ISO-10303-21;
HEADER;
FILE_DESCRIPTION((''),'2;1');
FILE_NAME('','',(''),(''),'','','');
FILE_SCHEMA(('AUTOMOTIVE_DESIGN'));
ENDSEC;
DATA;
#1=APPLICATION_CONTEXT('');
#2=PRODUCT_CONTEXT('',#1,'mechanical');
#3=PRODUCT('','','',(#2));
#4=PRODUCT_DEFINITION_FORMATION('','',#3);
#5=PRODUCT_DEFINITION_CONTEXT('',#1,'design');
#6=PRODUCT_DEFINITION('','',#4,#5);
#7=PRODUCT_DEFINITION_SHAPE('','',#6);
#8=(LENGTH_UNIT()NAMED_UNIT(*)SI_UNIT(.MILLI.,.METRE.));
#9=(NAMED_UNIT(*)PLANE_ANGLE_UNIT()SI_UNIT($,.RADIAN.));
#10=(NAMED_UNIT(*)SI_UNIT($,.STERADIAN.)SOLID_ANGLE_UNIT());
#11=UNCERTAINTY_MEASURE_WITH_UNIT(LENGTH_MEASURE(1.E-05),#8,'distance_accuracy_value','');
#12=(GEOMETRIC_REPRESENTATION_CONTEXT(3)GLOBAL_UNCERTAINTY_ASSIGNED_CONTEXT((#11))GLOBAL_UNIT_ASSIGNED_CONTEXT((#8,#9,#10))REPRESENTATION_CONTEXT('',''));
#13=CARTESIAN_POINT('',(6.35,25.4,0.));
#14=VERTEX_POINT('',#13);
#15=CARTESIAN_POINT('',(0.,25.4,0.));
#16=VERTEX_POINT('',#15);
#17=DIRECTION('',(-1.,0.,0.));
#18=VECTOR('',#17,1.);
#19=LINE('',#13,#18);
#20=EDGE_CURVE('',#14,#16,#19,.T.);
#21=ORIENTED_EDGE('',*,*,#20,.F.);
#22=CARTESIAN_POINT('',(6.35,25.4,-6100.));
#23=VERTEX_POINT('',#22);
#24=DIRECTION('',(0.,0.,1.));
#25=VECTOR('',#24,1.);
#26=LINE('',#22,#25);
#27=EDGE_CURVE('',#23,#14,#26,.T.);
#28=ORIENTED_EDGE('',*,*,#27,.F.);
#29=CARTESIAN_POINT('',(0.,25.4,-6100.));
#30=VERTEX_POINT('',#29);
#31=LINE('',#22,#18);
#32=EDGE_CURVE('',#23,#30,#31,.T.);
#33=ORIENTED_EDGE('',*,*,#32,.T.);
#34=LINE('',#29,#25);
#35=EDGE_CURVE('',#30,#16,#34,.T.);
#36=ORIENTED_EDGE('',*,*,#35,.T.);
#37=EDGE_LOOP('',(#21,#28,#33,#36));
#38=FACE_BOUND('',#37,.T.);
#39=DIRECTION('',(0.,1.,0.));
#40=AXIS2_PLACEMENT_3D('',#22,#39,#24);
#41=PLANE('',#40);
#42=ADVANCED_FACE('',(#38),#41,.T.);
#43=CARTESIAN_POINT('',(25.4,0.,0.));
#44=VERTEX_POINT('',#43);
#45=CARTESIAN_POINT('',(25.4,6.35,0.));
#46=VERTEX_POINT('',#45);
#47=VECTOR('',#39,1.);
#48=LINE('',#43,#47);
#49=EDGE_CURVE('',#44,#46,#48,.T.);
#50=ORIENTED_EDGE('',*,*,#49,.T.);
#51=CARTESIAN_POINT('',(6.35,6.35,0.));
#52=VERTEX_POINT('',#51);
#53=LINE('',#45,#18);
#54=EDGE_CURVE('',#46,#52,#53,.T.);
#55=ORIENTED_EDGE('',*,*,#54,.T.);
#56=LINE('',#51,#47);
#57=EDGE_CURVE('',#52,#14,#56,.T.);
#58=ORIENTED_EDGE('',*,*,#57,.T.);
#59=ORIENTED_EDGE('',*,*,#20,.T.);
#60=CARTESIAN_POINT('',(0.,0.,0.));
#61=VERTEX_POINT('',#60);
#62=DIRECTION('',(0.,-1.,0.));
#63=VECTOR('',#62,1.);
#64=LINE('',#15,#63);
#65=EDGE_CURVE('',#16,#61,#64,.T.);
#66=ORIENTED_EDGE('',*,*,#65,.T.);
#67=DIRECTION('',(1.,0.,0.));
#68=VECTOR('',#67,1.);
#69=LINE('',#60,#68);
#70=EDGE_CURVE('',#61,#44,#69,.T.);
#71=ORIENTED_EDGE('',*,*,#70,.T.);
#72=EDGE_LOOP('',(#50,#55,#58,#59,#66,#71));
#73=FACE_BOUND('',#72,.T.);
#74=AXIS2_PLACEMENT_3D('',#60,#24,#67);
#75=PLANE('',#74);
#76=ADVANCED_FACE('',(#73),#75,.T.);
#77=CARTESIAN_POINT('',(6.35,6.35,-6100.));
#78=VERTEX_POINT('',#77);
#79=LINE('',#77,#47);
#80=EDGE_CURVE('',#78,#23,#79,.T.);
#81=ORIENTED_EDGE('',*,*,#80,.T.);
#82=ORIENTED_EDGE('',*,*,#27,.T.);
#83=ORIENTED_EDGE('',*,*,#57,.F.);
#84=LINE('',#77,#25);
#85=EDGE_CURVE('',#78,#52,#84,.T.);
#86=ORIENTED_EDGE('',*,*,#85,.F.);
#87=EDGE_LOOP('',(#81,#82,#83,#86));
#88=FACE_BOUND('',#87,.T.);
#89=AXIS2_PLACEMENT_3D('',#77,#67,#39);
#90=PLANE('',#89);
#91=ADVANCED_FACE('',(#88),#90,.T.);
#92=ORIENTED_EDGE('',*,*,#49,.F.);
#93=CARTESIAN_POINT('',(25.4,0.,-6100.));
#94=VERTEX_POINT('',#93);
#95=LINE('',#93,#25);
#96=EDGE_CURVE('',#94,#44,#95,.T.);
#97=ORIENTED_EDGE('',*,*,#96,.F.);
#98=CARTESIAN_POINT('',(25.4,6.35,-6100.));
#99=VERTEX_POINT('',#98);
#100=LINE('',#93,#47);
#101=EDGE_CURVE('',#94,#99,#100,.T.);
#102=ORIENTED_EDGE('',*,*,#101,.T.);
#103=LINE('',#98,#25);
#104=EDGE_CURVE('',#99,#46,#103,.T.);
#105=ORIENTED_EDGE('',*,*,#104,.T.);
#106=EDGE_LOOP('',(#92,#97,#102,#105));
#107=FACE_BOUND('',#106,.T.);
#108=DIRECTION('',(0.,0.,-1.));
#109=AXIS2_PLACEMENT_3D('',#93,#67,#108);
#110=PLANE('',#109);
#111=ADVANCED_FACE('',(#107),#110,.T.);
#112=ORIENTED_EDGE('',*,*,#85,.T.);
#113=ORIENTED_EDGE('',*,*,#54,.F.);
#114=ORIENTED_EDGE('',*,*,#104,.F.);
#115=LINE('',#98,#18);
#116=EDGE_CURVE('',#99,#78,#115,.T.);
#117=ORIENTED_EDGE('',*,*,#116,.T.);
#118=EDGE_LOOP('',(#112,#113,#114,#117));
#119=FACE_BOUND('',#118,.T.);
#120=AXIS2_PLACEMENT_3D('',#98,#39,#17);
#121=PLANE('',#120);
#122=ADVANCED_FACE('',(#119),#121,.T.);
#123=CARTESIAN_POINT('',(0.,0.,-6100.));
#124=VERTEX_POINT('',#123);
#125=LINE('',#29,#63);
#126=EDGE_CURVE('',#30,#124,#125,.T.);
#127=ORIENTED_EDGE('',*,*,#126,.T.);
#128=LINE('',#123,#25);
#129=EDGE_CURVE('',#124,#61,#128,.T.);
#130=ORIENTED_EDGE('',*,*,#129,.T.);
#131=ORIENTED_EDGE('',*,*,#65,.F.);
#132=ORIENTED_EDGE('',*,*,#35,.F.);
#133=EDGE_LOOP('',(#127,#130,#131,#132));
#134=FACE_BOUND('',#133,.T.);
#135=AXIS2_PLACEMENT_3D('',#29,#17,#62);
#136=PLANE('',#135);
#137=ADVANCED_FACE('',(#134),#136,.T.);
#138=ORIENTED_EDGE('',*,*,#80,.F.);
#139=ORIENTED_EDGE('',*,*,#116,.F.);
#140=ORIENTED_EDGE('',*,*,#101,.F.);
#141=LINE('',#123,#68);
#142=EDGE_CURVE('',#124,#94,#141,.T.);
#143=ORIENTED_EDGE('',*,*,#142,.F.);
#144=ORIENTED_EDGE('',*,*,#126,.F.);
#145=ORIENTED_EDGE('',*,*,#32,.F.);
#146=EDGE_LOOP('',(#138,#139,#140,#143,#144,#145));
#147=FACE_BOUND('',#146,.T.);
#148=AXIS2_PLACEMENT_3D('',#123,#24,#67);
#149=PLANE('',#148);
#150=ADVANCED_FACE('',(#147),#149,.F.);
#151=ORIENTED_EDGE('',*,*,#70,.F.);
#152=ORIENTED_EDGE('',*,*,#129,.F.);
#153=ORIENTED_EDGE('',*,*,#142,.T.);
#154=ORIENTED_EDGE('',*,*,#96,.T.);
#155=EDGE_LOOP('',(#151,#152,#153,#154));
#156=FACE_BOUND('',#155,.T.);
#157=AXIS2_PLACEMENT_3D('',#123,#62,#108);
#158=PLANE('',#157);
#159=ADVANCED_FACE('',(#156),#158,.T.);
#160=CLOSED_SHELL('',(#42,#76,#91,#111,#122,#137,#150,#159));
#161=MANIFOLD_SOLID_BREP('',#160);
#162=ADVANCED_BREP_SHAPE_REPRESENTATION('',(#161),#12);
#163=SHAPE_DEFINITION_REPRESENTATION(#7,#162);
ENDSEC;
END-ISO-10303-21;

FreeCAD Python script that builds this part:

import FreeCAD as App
import Part
import Sketcher
Q = App.Units.Quantity

doc = App.newDocument("Part")
body = doc.addObject("PartDesign::Body", "Body")

sketch1 = body.newObject("Sketcher::SketchObject", "Sketch")
sketch1.AttachmentSupport = (doc.getObject("XY_Plane"), [""])
sketch1.MapMode = "FlatFace"
sketch1.addGeometry([
    Part.LineSegment(App.Vector(0, 25, 0), App.Vector(0, 0, 0)),
    Part.LineSegment(App.Vector(0, 0, 0), App.Vector(25, 0, 0)),
    Part.LineSegment(App.Vector(25, 0, 0), App.Vector(25, 6, 0)),
    Part.LineSegment(App.Vector(25, 6, 0), App.Vector(6, 6, 0)),
    Part.LineSegment(App.Vector(6, 6, 0), App.Vector(6, 25, 0)),
    Part.LineSegment(App.Vector(6, 25, 0), App.Vector(0, 25, 0)),
], False)
sketch1.addConstraint([
    Sketcher.Constraint("Coincident", 0, 2, 1, 1),
    Sketcher.Constraint("Coincident", 1, 2, 2, 1),
    Sketcher.Constraint("Coincident", 2, 2, 3, 1),
    Sketcher.Constraint("Coincident", 3, 2, 4, 1),
    Sketcher.Constraint("Coincident", 4, 2, 5, 1),
    Sketcher.Constraint("Coincident", 5, 2, 0, 1),
    Sketcher.Constraint("Vertical", 0),
    Sketcher.Constraint("Horizontal", 1),
    Sketcher.Constraint("Vertical", 2),
    Sketcher.Constraint("Horizontal", 3),
    Sketcher.Constraint("Vertical", 4),
    Sketcher.Constraint("Horizontal", 5),
    Sketcher.Constraint("Coincident", 0, 2, -1, 1),
    Sketcher.Constraint("Equal", 1, 0),
    Sketcher.Constraint("Equal", 5, 2),
    Sketcher.Constraint("DistanceX", 1, 1, 1, 2, Q("1 in")),
    Sketcher.Constraint("DistanceX", 3, 2, 3, 1, Q("0.75 in")),
])
pad1 = body.newObject("PartDesign::Pad", "Pad")
pad1.Profile = sketch1
pad1.Length = 6100
pad1.Reversed = True

doc.recompute()
